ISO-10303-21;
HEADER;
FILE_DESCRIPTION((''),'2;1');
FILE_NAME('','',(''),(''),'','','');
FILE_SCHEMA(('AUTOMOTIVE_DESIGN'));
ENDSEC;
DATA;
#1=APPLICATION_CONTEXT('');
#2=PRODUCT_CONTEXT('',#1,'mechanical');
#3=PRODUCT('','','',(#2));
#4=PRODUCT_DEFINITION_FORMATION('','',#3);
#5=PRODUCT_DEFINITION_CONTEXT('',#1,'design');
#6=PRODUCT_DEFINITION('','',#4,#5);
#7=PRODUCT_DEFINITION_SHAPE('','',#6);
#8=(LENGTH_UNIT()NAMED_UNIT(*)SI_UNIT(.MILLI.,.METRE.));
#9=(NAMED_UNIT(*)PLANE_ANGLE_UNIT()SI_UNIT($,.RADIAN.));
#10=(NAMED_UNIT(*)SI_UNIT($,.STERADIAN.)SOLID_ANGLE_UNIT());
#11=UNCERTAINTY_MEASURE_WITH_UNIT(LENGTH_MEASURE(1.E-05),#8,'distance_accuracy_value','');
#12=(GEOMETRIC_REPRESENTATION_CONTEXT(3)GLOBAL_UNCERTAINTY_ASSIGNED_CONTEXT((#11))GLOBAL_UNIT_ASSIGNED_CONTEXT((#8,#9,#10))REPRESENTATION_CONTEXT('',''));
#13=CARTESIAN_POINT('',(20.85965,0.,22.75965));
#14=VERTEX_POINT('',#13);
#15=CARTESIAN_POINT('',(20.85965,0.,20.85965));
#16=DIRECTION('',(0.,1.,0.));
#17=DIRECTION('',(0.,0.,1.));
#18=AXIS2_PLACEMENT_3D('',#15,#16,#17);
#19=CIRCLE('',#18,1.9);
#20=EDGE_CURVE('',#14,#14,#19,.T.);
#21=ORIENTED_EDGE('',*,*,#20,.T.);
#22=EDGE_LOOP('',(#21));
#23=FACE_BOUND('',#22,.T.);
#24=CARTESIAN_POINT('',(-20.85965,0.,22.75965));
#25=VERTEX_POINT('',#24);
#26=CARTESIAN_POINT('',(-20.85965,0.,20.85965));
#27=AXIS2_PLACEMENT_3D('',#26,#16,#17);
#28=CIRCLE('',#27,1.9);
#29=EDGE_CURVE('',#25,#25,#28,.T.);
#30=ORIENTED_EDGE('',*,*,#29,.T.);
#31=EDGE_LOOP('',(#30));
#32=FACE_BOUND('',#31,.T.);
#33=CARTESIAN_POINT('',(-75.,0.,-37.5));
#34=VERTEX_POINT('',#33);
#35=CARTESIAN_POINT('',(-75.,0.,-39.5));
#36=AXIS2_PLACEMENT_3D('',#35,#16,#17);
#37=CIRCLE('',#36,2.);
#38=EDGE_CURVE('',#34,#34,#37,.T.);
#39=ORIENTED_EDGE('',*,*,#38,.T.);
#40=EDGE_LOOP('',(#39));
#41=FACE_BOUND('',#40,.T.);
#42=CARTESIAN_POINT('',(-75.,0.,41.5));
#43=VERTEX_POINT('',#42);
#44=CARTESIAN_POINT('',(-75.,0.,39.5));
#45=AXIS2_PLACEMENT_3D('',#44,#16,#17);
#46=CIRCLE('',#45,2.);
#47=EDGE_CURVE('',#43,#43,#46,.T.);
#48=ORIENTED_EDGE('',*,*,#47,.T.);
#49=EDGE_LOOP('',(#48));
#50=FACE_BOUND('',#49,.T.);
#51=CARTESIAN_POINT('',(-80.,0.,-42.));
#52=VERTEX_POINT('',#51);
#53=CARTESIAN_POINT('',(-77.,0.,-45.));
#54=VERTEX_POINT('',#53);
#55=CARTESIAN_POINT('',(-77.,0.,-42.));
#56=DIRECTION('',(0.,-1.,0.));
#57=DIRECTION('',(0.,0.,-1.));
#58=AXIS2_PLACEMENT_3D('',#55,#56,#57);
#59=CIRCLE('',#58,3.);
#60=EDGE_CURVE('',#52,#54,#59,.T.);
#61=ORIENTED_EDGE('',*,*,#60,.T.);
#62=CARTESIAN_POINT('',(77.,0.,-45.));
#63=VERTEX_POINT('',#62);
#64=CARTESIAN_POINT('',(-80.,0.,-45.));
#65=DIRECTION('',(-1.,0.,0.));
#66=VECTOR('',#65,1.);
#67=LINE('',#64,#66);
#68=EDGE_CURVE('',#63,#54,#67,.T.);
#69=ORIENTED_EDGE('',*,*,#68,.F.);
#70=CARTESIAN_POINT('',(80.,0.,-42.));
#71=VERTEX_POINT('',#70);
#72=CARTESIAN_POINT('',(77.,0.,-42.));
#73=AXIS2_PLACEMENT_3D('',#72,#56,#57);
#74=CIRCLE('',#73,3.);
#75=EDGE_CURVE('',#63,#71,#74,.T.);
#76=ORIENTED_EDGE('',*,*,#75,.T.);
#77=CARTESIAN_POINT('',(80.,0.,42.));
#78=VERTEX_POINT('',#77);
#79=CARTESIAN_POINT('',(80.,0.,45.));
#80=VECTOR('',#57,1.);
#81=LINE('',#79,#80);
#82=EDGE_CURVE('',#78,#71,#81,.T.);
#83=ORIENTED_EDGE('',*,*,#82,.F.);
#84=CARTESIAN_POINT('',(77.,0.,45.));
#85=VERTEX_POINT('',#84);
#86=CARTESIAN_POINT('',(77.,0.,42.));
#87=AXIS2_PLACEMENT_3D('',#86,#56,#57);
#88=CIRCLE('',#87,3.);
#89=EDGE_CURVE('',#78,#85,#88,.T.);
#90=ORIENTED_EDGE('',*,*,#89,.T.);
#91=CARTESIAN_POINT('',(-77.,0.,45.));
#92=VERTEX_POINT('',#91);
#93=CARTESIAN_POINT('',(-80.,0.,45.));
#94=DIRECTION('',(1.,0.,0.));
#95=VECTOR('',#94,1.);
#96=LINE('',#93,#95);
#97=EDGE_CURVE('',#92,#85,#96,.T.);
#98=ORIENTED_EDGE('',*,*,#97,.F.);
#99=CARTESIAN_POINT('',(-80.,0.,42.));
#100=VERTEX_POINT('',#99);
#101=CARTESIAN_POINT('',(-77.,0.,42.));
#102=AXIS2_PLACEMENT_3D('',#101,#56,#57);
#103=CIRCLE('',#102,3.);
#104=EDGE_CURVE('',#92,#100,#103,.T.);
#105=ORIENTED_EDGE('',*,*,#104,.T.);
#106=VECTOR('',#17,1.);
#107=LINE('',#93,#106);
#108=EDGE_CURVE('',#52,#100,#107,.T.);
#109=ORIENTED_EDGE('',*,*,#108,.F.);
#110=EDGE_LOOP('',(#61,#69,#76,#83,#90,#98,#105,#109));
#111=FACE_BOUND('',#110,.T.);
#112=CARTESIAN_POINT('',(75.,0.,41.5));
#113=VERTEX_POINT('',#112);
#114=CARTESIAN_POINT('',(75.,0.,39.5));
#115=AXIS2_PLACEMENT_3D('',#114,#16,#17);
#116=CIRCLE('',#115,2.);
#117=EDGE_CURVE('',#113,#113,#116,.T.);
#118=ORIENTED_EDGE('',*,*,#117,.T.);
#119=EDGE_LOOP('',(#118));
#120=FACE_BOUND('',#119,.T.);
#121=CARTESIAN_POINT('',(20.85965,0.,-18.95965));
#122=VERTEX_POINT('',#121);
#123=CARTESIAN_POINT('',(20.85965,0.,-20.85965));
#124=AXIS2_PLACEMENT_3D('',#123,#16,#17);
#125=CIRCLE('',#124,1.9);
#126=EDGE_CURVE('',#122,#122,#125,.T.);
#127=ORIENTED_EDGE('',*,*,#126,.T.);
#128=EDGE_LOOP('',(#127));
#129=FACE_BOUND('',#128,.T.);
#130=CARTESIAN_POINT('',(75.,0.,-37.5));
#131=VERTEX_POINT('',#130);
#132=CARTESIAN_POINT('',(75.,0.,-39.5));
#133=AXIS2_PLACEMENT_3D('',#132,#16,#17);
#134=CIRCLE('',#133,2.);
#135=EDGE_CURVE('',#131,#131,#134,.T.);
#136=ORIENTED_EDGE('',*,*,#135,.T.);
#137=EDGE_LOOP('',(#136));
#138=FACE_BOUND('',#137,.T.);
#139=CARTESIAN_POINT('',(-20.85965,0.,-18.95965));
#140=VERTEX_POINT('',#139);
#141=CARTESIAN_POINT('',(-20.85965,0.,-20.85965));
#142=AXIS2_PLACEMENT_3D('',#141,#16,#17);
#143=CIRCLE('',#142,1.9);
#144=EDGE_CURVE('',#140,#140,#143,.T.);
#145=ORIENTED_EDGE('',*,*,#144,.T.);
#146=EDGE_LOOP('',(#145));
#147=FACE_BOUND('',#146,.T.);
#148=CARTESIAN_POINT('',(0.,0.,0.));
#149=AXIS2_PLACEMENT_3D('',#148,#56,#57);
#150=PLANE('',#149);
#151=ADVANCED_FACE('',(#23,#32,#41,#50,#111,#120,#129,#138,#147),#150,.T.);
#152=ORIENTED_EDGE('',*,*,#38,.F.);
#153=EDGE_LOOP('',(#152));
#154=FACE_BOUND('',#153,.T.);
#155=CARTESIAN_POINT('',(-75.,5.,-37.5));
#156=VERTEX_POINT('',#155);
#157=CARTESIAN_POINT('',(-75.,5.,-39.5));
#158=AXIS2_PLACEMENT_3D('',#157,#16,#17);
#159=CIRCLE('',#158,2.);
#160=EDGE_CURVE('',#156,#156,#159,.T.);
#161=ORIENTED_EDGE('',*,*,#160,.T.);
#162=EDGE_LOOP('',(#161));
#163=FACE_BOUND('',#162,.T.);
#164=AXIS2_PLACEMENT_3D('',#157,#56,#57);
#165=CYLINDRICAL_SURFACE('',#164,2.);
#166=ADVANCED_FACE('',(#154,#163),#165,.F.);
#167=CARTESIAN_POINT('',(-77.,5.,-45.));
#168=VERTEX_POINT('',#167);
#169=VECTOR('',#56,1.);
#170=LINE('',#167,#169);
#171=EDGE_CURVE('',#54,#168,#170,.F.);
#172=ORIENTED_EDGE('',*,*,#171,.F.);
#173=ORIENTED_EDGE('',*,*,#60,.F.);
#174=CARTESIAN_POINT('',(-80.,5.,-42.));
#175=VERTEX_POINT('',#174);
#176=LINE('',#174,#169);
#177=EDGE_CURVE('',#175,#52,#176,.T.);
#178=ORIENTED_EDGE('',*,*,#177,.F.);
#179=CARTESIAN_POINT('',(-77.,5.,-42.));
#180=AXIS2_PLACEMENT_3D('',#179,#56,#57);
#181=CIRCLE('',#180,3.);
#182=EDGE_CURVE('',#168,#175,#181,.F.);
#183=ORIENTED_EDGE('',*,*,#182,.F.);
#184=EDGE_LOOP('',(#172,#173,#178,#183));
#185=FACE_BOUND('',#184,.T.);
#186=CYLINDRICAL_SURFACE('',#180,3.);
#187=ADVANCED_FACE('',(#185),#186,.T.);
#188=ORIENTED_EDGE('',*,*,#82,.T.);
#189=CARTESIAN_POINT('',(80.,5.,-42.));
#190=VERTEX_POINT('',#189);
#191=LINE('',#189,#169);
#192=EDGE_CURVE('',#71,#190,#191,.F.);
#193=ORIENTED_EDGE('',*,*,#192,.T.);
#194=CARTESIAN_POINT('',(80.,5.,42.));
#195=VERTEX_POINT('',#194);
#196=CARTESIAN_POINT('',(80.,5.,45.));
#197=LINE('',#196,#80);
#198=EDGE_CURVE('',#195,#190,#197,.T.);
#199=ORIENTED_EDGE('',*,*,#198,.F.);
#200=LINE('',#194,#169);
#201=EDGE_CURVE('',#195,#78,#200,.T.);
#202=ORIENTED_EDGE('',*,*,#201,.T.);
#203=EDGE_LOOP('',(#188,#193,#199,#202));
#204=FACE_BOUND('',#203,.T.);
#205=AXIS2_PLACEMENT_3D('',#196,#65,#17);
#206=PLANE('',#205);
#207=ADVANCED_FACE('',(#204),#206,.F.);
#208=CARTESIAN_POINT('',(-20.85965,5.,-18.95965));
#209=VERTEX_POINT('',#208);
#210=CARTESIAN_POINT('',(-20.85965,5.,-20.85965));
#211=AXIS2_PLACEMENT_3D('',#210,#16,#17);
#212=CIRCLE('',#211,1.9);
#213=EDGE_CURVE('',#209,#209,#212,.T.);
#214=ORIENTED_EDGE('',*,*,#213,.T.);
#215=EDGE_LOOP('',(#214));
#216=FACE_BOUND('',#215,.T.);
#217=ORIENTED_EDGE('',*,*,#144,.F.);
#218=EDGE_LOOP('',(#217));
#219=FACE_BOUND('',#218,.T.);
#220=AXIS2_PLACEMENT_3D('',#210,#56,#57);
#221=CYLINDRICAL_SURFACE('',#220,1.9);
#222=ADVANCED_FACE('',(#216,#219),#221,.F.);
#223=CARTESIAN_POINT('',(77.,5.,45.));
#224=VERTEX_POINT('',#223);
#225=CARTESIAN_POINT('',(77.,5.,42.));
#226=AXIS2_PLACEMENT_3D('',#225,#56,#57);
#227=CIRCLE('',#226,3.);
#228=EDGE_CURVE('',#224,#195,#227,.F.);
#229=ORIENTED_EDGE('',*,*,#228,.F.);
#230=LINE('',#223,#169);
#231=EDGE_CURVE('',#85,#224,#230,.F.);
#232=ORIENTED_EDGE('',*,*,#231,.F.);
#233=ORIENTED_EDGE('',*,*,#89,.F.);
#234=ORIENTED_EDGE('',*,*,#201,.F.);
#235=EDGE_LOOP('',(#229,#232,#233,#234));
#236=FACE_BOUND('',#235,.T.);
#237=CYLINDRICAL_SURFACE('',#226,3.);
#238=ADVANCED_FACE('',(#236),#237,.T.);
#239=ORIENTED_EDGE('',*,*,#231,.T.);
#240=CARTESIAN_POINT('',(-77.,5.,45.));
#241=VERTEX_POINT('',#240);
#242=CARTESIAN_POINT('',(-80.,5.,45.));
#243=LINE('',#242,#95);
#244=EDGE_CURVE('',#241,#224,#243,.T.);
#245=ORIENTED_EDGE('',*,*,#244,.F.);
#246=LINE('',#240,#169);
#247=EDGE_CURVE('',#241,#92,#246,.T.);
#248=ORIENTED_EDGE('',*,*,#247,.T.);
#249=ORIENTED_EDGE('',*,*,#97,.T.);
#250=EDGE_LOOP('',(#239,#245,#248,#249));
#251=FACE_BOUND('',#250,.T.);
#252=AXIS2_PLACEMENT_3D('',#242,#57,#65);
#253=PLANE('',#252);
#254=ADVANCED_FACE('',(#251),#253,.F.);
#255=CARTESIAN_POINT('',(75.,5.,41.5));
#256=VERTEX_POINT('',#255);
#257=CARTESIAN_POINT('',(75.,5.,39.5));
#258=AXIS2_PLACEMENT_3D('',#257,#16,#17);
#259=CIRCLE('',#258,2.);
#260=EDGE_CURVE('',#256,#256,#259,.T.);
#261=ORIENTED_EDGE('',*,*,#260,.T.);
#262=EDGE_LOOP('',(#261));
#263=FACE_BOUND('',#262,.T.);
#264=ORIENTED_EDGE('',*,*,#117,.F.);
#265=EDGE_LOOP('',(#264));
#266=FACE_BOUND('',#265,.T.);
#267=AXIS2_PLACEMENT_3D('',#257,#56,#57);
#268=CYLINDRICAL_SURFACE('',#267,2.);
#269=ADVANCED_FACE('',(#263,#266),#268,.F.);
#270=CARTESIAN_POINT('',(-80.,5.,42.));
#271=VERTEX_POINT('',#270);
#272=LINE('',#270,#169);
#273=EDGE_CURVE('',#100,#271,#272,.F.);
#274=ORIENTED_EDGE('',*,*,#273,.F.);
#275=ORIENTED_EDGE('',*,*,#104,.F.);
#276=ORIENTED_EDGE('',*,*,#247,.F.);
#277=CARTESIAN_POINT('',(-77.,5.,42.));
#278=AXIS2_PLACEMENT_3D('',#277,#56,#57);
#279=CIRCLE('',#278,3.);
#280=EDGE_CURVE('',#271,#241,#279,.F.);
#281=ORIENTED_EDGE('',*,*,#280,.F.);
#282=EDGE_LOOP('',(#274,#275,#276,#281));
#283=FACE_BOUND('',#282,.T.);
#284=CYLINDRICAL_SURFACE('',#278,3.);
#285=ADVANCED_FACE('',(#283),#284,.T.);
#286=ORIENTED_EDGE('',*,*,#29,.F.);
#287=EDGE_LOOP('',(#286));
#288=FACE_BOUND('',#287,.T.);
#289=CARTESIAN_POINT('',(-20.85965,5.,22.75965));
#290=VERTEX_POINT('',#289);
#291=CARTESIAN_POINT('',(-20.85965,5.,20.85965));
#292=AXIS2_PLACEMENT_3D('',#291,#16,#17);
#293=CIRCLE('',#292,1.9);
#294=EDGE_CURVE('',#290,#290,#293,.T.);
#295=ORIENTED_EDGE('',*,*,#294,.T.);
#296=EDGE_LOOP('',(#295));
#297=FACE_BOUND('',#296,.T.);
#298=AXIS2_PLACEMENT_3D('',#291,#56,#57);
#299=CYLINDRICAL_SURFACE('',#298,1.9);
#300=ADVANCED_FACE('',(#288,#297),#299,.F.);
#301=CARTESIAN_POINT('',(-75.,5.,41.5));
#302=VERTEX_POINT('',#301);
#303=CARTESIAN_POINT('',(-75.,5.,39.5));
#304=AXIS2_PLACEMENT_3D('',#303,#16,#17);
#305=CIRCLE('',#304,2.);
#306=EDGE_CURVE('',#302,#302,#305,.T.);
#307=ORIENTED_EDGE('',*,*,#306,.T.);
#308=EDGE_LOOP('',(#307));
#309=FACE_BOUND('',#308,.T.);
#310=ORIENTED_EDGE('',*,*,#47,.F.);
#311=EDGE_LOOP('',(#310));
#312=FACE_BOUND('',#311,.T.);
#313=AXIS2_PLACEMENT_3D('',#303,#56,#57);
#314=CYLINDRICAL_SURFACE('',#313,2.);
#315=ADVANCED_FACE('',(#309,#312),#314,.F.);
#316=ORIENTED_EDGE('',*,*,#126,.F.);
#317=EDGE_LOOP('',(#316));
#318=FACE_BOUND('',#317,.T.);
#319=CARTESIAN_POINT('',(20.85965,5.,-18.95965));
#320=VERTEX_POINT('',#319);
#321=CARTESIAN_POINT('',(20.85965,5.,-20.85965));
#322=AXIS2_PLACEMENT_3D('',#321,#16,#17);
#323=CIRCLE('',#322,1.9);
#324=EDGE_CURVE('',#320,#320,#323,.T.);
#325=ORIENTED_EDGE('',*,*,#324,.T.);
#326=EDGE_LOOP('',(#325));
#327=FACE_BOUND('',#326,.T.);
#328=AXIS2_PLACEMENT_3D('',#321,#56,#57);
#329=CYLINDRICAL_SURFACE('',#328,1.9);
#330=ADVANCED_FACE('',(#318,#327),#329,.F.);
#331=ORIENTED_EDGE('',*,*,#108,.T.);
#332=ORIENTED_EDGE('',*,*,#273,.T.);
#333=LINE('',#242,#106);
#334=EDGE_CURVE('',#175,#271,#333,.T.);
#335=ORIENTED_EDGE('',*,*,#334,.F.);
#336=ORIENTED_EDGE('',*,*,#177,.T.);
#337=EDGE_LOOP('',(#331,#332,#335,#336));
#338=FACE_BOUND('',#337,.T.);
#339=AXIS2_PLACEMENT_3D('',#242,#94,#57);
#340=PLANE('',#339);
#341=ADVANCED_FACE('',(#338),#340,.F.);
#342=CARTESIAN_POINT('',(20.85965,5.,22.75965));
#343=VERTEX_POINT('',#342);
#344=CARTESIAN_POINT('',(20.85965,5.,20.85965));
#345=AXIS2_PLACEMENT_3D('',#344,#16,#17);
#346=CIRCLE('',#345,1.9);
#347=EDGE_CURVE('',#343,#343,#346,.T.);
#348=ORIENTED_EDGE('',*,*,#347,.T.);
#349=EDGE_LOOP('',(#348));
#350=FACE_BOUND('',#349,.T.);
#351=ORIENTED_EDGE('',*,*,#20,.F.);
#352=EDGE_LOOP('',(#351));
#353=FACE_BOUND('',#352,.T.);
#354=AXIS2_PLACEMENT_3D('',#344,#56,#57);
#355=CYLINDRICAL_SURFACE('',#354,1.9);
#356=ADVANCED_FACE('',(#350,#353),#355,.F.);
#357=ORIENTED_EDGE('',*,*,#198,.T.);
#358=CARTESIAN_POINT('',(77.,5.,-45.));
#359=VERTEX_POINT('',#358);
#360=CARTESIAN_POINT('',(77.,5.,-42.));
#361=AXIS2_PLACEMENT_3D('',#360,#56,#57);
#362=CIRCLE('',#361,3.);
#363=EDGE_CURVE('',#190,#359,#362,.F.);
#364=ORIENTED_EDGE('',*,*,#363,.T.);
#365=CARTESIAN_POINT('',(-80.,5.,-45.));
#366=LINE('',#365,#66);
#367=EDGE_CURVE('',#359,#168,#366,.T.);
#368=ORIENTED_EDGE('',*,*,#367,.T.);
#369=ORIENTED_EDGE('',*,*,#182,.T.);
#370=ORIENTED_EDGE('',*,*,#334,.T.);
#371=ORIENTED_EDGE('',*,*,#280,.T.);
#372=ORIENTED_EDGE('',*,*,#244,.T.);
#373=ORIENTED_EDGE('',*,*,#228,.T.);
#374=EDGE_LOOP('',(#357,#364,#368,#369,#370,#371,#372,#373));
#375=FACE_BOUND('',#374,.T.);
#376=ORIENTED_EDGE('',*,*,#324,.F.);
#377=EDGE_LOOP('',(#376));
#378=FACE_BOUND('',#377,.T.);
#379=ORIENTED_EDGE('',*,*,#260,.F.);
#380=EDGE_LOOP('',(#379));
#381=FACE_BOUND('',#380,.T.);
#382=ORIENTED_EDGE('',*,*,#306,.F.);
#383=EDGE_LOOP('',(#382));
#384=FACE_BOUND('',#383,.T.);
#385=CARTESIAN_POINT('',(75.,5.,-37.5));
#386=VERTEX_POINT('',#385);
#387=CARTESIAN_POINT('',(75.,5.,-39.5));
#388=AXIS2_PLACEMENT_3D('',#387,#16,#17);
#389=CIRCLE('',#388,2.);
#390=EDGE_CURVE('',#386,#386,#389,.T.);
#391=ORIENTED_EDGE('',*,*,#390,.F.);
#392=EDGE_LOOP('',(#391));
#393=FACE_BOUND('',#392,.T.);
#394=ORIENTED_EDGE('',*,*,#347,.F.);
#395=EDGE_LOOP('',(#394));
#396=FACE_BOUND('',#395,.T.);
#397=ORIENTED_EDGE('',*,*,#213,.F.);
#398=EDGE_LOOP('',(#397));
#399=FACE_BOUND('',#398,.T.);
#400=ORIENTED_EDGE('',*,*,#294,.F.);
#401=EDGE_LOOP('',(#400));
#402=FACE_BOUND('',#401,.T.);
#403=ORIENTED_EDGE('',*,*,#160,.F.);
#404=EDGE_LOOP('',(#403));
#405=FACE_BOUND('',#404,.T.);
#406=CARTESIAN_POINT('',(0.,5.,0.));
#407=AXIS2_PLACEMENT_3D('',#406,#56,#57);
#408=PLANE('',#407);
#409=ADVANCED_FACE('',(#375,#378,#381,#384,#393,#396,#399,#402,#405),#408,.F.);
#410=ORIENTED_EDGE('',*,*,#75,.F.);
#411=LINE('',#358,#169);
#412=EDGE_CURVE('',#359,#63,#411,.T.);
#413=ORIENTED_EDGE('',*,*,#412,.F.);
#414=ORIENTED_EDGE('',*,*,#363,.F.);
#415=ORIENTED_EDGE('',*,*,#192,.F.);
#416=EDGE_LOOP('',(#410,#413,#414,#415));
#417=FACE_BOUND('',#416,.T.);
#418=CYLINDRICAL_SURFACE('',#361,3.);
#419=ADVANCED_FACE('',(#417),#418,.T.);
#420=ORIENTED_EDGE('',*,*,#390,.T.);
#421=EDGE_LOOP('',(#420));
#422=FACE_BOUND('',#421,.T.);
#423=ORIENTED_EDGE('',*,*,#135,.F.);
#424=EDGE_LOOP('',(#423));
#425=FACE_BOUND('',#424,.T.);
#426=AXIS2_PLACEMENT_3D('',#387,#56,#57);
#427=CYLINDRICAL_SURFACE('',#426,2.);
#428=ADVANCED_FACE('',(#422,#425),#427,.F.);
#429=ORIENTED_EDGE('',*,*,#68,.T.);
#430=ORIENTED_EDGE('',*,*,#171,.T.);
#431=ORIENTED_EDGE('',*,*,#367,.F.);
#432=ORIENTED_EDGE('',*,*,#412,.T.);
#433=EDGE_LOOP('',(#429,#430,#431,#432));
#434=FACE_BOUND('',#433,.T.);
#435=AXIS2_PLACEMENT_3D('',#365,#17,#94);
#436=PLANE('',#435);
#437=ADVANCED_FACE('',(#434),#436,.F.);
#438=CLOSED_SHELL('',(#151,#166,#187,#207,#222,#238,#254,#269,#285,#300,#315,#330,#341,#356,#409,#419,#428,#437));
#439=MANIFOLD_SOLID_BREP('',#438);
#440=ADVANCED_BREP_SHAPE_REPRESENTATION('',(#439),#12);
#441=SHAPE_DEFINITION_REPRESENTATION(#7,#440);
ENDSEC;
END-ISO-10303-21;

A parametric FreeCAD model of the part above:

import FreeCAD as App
import Part
import Sketcher
from FreeCAD import Vector
Q = App.Units.Quantity


def edges_at(feature, points):
    """Names of the edges that pass closest to the given points."""
    edges = feature.Shape.Edges
    near = lambda p: min(range(len(edges)), key=lambda i: edges[i].distToShape(Part.Vertex(*p))[0])
    return sorted({f"Edge{near(p) + 1}" for p in points})

doc = App.newDocument("Part")
body = doc.addObject("PartDesign::Body", "Body")

# Sketch on XZ plane
sketch1 = body.newObject("Sketcher::SketchObject", "Sketch")
sketch1.AttachmentSupport = (doc.getObject("XZ_Plane"), [""])
sketch1.MapMode = "FlatFace"
sketch1.addGeometry(Part.LineSegment(Vector(-80, -45, 0), Vector(-80, 45, 0)), False)
sketch1.addGeometry(Part.LineSegment(Vector(-80, 45, 0), Vector(80, 45, 0)), False)
sketch1.addGeometry(Part.LineSegment(Vector(80, 45, 0), Vector(80, -45, 0)), False)
sketch1.addGeometry(Part.LineSegment(Vector(80, -45, 0), Vector(-80, -45, 0)), False)
sketch1.addGeometry(Part.Circle(Vector(-75, 39.5, 0), Vector(0, 0, 1), 2), False)
sketch1.addGeometry(Part.Circle(Vector(-20.85965, 20.85965, 0), Vector(0, 0, 1), 1.9), False)
sketch1.addGeometry(Part.Circle(Vector(20.85965, 20.85965, 0), Vector(0, 0, 1), 1.9), False)
sketch1.addGeometry(Part.Circle(Vector(75, 39.5, 0), Vector(0, 0, 1), 2), False)
sketch1.addGeometry(Part.Circle(Vector(-75, -39.5, 0), Vector(0, 0, 1), 2), False)
sketch1.addGeometry(Part.Circle(Vector(-20.85965, -20.85965, 0), Vector(0, 0, 1), 1.9), False)
sketch1.addGeometry(Part.Circle(Vector(20.85965, -20.85965, 0), Vector(0, 0, 1), 1.9), False)
sketch1.addGeometry(Part.Circle(Vector(75, -39.5, 0), Vector(0, 0, 1), 2), False)
sketch1.addConstraint(Sketcher.Constraint("Coincident", 0, 2, 1, 1))
sketch1.addConstraint(Sketcher.Constraint("Coincident", 1, 2, 2, 1))
sketch1.addConstraint(Sketcher.Constraint("Coincident", 2, 2, 3, 1))
sketch1.addConstraint(Sketcher.Constraint("Coincident", 3, 2, 0, 1))
sketch1.addConstraint(Sketcher.Constraint("Vertical", 0))
sketch1.addConstraint(Sketcher.Constraint("Horizontal", 1))
sketch1.addConstraint(Sketcher.Constraint("Vertical", 2))
sketch1.addConstraint(Sketcher.Constraint("Horizontal", 3))
sketch1.addConstraint(Sketcher.Constraint("Equal", 5, 6))
sketch1.addConstraint(Sketcher.Constraint("Equal", 4, 7))
sketch1.addConstraint(Sketcher.Constraint("Equal", 7, 8))
sketch1.addConstraint(Sketcher.Constraint("Equal", 6, 9))
sketch1.addConstraint(Sketcher.Constraint("Equal", 9, 10))
sketch1.addConstraint(Sketcher.Constraint("Equal", 8, 11))
sketch1.addConstraint(Sketcher.Constraint("Symmetric", 7, 3, 8, 3, -1, 1))
sketch1.addConstraint(Sketcher.Constraint("Symmetric", 6, 3, 9, 3, -1, 1))
sketch1.addConstraint(Sketcher.Constraint("Symmetric", 5, 3, 10, 3, -1, 1))
sketch1.addConstraint(Sketcher.Constraint("Symmetric", 4, 3, 11, 3, -1, 1))
sketch1.addConstraint(Sketcher.Constraint("Symmetric", 0, 2, 2, 2, -1, 1))
sketch1.addConstraint(Sketcher.Constraint("Symmetric", 5, 3, 6, 3, -2))
sketch1.addConstraint(Sketcher.Constraint("Symmetric", 4, 3, 7, 3, -2))
sketch1.addConstraint(Sketcher.Constraint("Diameter", 4, Q("4 mm")))
sketch1.addConstraint(Sketcher.Constraint("Diameter", 5, Q("3.8 mm")))
sketch1.addConstraint(Sketcher.Constraint("DistanceX", 1, 1, 1, 2, Q("160 mm")))
sketch1.addConstraint(Sketcher.Constraint("DistanceY", 0, 1, 0, 2, Q("90 mm")))
sketch1.addConstraint(Sketcher.Constraint("DistanceX", 4, 3, -1, 1, Q("75 mm")))
sketch1.addConstraint(Sketcher.Constraint("DistanceY", 8, 3, 4, 3, Q("79 mm")))
sketch1.addConstraint(Sketcher.Constraint("DistanceX", 5, 3, 6, 3, Q("41.7193 mm")))
sketch1.addConstraint(Sketcher.Constraint("DistanceY", 9, 3, 5, 3, Q("41.7193 mm")))
pad1 = body.newObject("PartDesign::Pad", "Pad")
pad1.Profile = sketch1
pad1.Length = 5
pad1.Reversed = True
doc.recompute()

fillet = body.newObject("PartDesign::Fillet", "Fillet")
fillet.Base = (pad1, edges_at(pad1, [
    (80, 2.5, 45),
    (-80, 2.5, 45),
    (-80, 2.5, -45),
    (80, 2.5, -45),
]))
fillet.Radius = 3

doc.recompute()
